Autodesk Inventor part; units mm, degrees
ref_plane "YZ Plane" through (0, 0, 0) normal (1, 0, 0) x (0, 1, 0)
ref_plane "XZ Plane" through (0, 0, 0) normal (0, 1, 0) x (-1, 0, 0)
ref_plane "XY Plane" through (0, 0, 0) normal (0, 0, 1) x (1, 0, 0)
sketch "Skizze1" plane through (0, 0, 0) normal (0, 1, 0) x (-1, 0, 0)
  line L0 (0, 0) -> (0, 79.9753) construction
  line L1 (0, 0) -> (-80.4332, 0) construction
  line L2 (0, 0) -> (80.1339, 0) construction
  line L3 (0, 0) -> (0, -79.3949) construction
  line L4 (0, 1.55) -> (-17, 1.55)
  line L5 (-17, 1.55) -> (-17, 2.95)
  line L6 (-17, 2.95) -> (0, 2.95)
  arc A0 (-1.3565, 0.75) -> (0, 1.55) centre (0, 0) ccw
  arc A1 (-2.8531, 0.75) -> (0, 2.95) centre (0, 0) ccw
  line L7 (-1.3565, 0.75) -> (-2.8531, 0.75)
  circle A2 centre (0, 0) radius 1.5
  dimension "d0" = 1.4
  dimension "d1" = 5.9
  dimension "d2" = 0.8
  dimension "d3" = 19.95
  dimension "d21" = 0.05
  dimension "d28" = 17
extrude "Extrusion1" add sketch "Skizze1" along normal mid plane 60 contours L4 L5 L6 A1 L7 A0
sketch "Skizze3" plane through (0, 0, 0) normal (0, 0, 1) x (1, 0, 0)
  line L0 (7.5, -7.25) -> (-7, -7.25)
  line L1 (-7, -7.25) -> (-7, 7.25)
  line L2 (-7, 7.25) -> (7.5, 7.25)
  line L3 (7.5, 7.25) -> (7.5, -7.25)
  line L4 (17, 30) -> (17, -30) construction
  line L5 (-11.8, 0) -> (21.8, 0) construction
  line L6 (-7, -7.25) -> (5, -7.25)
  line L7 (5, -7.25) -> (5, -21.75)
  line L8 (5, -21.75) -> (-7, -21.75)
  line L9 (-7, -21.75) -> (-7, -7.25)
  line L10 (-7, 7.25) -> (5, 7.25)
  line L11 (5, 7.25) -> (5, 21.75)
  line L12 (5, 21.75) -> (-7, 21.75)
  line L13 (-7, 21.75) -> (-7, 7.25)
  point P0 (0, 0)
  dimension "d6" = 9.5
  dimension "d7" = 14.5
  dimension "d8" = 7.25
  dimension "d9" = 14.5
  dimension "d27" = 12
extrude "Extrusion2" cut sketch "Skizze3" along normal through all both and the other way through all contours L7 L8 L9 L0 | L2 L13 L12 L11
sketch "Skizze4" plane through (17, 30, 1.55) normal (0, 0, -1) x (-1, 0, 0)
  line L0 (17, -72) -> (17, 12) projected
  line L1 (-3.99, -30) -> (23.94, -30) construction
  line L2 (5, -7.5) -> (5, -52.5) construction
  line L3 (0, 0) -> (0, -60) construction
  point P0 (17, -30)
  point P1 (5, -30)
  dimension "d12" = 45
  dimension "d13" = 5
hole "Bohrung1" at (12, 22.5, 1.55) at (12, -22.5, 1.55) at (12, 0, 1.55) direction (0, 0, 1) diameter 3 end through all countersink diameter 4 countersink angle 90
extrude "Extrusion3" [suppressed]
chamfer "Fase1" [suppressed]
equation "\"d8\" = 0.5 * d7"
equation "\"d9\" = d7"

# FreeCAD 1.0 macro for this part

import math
import FreeCAD as App
import Part
import Sketcher

V = App.Vector
Q = App.Units.Quantity

doc = App.newDocument("Part")
body = doc.addObject("PartDesign::Body", "Body")

sketch1 = doc.addObject("Sketcher::SketchObject", "Sketch")
body.addObject(sketch1)
sketch1.AttachmentSupport = (doc.XZ_Plane, [""])
sketch1.MapMode = "FlatFace"
sketch1.addGeometry([
    Part.LineSegment(V(17, 1.55, 0), V(0, 1.55, 0)),
    Part.ArcOfCircle(Part.Circle(V(0, 0, 0), V(0, 0, 1), 1.55003), math.radians(90), math.radians(388.93792)),
    Part.LineSegment(V(1.3565, 0.75, 0), V(2.8531, 0.75, 0)),
    Part.ArcOfCircle(Part.Circle(V(0, 0, 0), V(0, 0, 1), 2.95003), math.radians(90), math.radians(374.72824)),
    Part.LineSegment(V(0, 2.95, 0), V(17, 2.95, 0)),
    Part.LineSegment(V(17, 2.95, 0), V(17, 1.55, 0)),
], False)
sketch1.addConstraint([
    Sketcher.Constraint("Tangent", 0, 2, 1, 1),
    Sketcher.Constraint("Coincident", 1, 2, 2, 1),
    Sketcher.Constraint("Coincident", 2, 2, 3, 2),
    Sketcher.Constraint("Tangent", 3, 1, 4, 1),
    Sketcher.Constraint("Coincident", 4, 2, 5, 1),
    Sketcher.Constraint("Coincident", 5, 2, 0, 1),
    Sketcher.Constraint("Horizontal", 0),
    Sketcher.Constraint("Horizontal", 2),
    Sketcher.Constraint("Horizontal", 4),
    Sketcher.Constraint("Vertical", 5),
    Sketcher.Constraint("Coincident", 1, 3, -1, 1),
    Sketcher.Constraint("Coincident", 3, 3, -1, 1),
    Sketcher.Constraint("DistanceX", 0, 2, 0, 1, Q("17 mm")),
    Sketcher.Constraint("Radius", 3, Q("2.95 mm")),
    Sketcher.Constraint("DistanceY", 5, 2, 5, 1, Q("1.4 mm")),
    Sketcher.Constraint("DistanceY", 1, 2, 0, 2, Q("0.8 mm")),
])
pad1 = doc.addObject("PartDesign::Pad", "Pad")
body.addObject(pad1)
pad1.Profile = sketch1
pad1.Length = 60
pad1.Midplane = True

sketch2 = doc.addObject("Sketcher::SketchObject", "Sketch001")
body.addObject(sketch2)
sketch2.AttachmentSupport = (doc.XY_Plane, [""])
sketch2.MapMode = "FlatFace"
sketch2.addGeometry([
    Part.LineSegment(V(5, -21.75, 0), V(5, -7.25, 0)),
    Part.LineSegment(V(5, -7.25, 0), V(-7, -7.25, 0)),
    Part.LineSegment(V(-7, -7.25, 0), V(-7, -21.75, 0)),
    Part.LineSegment(V(-7, -21.75, 0), V(5, -21.75, 0)),
    Part.LineSegment(V(-7, 7.25, 0), V(5, 7.25, 0)),
    Part.LineSegment(V(5, 7.25, 0), V(5, 21.75, 0)),
    Part.LineSegment(V(5, 21.75, 0), V(-7, 21.75, 0)),
    Part.LineSegment(V(-7, 21.75, 0), V(-7, 7.25, 0)),
], False)
sketch2.addConstraint([
    Sketcher.Constraint("Coincident", 0, 2, 1, 1),
    Sketcher.Constraint("Coincident", 1, 2, 2, 1),
    Sketcher.Constraint("Coincident", 2, 2, 3, 1),
    Sketcher.Constraint("Coincident", 3, 2, 0, 1),
    Sketcher.Constraint("Coincident", 4, 2, 5, 1),
    Sketcher.Constraint("Coincident", 5, 2, 6, 1),
    Sketcher.Constraint("Coincident", 6, 2, 7, 1),
    Sketcher.Constraint("Coincident", 7, 2, 4, 1),
    Sketcher.Constraint("Vertical", 0),
    Sketcher.Constraint("Horizontal", 1),
    Sketcher.Constraint("Vertical", 2),
    Sketcher.Constraint("Horizontal", 3),
    Sketcher.Constraint("Horizontal", 4),
    Sketcher.Constraint("Vertical", 5),
    Sketcher.Constraint("Horizontal", 6),
    Sketcher.Constraint("Vertical", 7),
    Sketcher.Constraint("Symmetric", 0, 2, 4, 2, -1),
    Sketcher.Constraint("Symmetric", 2, 2, 6, 2, -1),
    Sketcher.Constraint("DistanceX", 1, 2, 1, 1, Q("12 mm")),
    Sketcher.Constraint("DistanceY", 0, 1, 0, 2, Q("14.5 mm")),
    Sketcher.Constraint("DistanceY", 0, 2, 4, 2, Q("14.5 mm")),
    Sketcher.Constraint("DistanceX", -1, 1, 0, 2, Q("5 mm")),
])
pocket1 = doc.addObject("PartDesign::Pocket", "Pocket")
body.addObject(pocket1)
pocket1.Profile = sketch2
pocket1.Type = "ThroughAll"
pocket1.Midplane = True

sketch3 = doc.addObject("Sketcher::SketchObject", "Sketch002")
body.addObject(sketch3)
sketch3.AttachmentSupport = (doc.XY_Plane, [""])
sketch3.MapMode = "FlatFace"
sketch3.AttachmentOffset = App.Placement(V(0, 0, 1.55), App.Rotation())
sketch3.addGeometry([
    Part.Circle(V(12, 22.5, 0), V(0, 0, 1), 1.5),
    Part.Circle(V(12, -22.5, 0), V(0, 0, 1), 1.5),
    Part.Circle(V(12, 0, 0), V(0, 0, 1), 1.5),
], False)
sketch3.addConstraint([
    Sketcher.Constraint("Equal", 0, 1),
    Sketcher.Constraint("Equal", 1, 2),
    Sketcher.Constraint("Symmetric", 0, 3, 1, 3, -1),
    Sketcher.Constraint("PointOnObject", 2, 3, -1),
    Sketcher.Constraint("Vertical", 1, 3, 2, 3),
    Sketcher.Constraint("Diameter", 0, Q("3 mm")),
    Sketcher.Constraint("DistanceX", -1, 1, 0, 3, Q("12 mm")),
    Sketcher.Constraint("DistanceY", 1, 3, 0, 3, Q("45 mm")),
])
doc.recompute()
hole = doc.addObject("PartDesign::Hole", "Hole")
body.addObject(hole)
hole.Profile = sketch3
hole.ThreadType = "None"
hole.Diameter = 3
hole.DepthType = "ThroughAll"
hole.HoleCutType = "Countersink"
hole.HoleCutDiameter = 4
hole.HoleCutCountersinkAngle = 90
hole.Reversed = True

doc.recompute()
